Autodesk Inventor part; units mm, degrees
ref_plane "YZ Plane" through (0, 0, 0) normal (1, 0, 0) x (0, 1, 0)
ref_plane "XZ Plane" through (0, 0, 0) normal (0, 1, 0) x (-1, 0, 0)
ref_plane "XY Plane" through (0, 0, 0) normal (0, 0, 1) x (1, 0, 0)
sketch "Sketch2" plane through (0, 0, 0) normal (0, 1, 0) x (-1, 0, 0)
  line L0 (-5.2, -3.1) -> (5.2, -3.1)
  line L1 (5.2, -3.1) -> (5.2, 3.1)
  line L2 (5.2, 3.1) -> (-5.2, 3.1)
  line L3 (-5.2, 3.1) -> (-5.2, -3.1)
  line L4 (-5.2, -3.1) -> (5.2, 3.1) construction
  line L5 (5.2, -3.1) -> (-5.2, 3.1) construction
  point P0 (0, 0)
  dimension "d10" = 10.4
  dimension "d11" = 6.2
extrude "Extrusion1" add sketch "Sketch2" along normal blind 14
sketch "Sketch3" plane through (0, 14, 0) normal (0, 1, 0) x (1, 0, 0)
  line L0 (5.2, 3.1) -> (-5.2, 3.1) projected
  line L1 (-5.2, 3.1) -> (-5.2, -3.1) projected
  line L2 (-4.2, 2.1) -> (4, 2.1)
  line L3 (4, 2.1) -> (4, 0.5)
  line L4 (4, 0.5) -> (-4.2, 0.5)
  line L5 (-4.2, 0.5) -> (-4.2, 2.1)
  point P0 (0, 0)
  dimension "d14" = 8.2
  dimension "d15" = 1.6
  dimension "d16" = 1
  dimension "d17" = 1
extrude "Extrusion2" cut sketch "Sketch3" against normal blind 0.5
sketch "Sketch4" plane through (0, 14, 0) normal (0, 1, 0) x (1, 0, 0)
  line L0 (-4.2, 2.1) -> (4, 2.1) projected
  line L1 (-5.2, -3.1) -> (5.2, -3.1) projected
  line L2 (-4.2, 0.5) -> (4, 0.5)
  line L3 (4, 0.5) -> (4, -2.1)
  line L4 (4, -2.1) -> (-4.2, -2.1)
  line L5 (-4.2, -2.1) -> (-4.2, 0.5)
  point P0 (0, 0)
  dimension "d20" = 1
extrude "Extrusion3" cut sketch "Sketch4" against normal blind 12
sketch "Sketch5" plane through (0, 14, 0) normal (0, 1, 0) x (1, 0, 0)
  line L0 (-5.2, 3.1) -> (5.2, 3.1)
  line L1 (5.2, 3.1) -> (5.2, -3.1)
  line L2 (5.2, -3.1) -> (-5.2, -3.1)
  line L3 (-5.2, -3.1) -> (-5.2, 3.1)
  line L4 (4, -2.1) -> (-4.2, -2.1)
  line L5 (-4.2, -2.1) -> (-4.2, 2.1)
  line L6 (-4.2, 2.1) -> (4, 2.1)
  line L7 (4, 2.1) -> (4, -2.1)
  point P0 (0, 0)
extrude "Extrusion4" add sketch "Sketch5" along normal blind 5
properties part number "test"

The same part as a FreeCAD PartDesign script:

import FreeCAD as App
import Part
import Sketcher

V = App.Vector


def add_polygon(sketch, points):
    """Adds a closed chain of lines whose ends are joined by coincident constraints."""
    first, n = sketch.GeometryCount, len(points)
    for a, b in zip(points, points[1:] + points[:1]):
        sketch.addGeometry(Part.LineSegment(App.Vector(*a, 0), App.Vector(*b, 0)), False)
    for i in range(n):
        sketch.addConstraint(Sketcher.Constraint("Coincident", first + i, 2, first + (i + 1) % n, 1))

doc = App.newDocument("Part")
body = doc.addObject("PartDesign::Body", "Body")

sketch1 = body.newObject("Sketcher::SketchObject", "Sketch")
sketch1.AttachmentSupport = (doc.getObject("XZ_Plane"), [""])
sketch1.MapMode = "FlatFace"
add_polygon(sketch1, [(5, 3), (5, -3), (-5, -3), (-5, 3)])
sketch1.addConstraint([
    Sketcher.Constraint("Vertical", 0),
    Sketcher.Constraint("Horizontal", 1),
    Sketcher.Constraint("Vertical", 2),
    Sketcher.Constraint("Horizontal", 3),
    Sketcher.Constraint("Symmetric", 0, 2, 2, 2, -1, 1),
    Sketcher.Constraint("DistanceX", 1, 2, 1, 1, 10.4),
    Sketcher.Constraint("DistanceY", 0, 2, 0, 1, 6.2),
])
pad1 = body.newObject("PartDesign::Pad", "Pad")
pad1.Profile = sketch1
pad1.Length = 14
pad1.Reversed = True

sketch2 = body.newObject("Sketcher::SketchObject", "Sketch001")
sketch2.AttachmentSupport = (doc.getObject("XZ_Plane"), [""])
sketch2.MapMode = "FlatFace"
sketch2.AttachmentOffset = App.Placement(V(0, 0, -14), App.Rotation())
add_polygon(sketch2, [(4, -2.1), (-4.2, -2.1), (-4.2, -0.5), (4, -0.5)])
sketch2.addConstraint([
    Sketcher.Constraint("Horizontal", 0),
    Sketcher.Constraint("Vertical", 1),
    Sketcher.Constraint("Horizontal", 2),
    Sketcher.Constraint("Vertical", 3),
    Sketcher.Constraint("DistanceX", 0, 2, 0, 1, 8.2),
    Sketcher.Constraint("DistanceY", 1, 1, 1, 2, 1.6),
    Sketcher.Constraint("DistanceX", -1, 1, 2, 2, 4.0),
    Sketcher.Constraint("DistanceY", 0, 2, -1, 1, 2.1),
])
pocket1 = body.newObject("PartDesign::Pocket", "Pocket")
pocket1.Profile = sketch2
pocket1.Length = 0.5
pocket1.Reversed = True

sketch3 = body.newObject("Sketcher::SketchObject", "Sketch002")
sketch3.AttachmentSupport = (doc.getObject("XZ_Plane"), [""])
sketch3.MapMode = "FlatFace"
sketch3.AttachmentOffset = App.Placement(V(0, 0, -14), App.Rotation())
add_polygon(sketch3, [(4, -0.5), (-4.2, -0.5), (-4.2, 2.1), (4, 2.1)])
sketch3.addConstraint([
    Sketcher.Constraint("Horizontal", 0),
    Sketcher.Constraint("Vertical", 1),
    Sketcher.Constraint("Horizontal", 2),
    Sketcher.Constraint("Vertical", 3),
    Sketcher.Constraint("DistanceX", 0, 2, 0, 1, 8.2),
    Sketcher.Constraint("DistanceY", 1, 1, 1, 2, 2.6),
    Sketcher.Constraint("DistanceX", -1, 1, 2, 2, 4.0),
    Sketcher.Constraint("DistanceY", 0, 2, -1, 1, 0.5),
])
pocket2 = body.newObject("PartDesign::Pocket", "Pocket001")
pocket2.Profile = sketch3
pocket2.Length = 12
pocket2.Reversed = True

sketch4 = body.newObject("Sketcher::SketchObject", "Sketch003")
sketch4.AttachmentSupport = (doc.getObject("XZ_Plane"), [""])
sketch4.MapMode = "FlatFace"
sketch4.AttachmentOffset = App.Placement(V(0, 0, -14), App.Rotation())
add_polygon(sketch4, [(5.2, -3.1), (-5.2, -3.1), (-5.2, 3.1), (5.2, 3.1)])
add_polygon(sketch4, [(4, -2.1), (4, 2.1), (-4.2, 2.1), (-4.2, -2.1)])
sketch4.addConstraint([
    Sketcher.Constraint("Horizontal", 0),
    Sketcher.Constraint("Vertical", 1),
    Sketcher.Constraint("Horizontal", 2),
    Sketcher.Constraint("Vertical", 3),
    Sketcher.Constraint("Vertical", 4),
    Sketcher.Constraint("Horizontal", 5),
    Sketcher.Constraint("Vertical", 6),
    Sketcher.Constraint("Horizontal", 7),
    Sketcher.Constraint("Symmetric", 0, 2, 2, 2, -1, 1),
    Sketcher.Constraint("DistanceX", 0, 2, 0, 1, 10.4),
    Sketcher.Constraint("DistanceX", 5, 2, 5, 1, 8.2),
    Sketcher.Constraint("DistanceY", 1, 1, 1, 2, 6.2),
    Sketcher.Constraint("DistanceY", 4, 1, 4, 2, 4.2),
    Sketcher.Constraint("DistanceX", -1, 1, 4, 2, 4.0),
    Sketcher.Constraint("DistanceY", 4, 2, 2, 2, 1.0),
])
pad2 = body.newObject("PartDesign::Pad", "Pad001")
pad2.Profile = sketch4
pad2.Length = 5
pad2.Reversed = True

doc.recompute()
